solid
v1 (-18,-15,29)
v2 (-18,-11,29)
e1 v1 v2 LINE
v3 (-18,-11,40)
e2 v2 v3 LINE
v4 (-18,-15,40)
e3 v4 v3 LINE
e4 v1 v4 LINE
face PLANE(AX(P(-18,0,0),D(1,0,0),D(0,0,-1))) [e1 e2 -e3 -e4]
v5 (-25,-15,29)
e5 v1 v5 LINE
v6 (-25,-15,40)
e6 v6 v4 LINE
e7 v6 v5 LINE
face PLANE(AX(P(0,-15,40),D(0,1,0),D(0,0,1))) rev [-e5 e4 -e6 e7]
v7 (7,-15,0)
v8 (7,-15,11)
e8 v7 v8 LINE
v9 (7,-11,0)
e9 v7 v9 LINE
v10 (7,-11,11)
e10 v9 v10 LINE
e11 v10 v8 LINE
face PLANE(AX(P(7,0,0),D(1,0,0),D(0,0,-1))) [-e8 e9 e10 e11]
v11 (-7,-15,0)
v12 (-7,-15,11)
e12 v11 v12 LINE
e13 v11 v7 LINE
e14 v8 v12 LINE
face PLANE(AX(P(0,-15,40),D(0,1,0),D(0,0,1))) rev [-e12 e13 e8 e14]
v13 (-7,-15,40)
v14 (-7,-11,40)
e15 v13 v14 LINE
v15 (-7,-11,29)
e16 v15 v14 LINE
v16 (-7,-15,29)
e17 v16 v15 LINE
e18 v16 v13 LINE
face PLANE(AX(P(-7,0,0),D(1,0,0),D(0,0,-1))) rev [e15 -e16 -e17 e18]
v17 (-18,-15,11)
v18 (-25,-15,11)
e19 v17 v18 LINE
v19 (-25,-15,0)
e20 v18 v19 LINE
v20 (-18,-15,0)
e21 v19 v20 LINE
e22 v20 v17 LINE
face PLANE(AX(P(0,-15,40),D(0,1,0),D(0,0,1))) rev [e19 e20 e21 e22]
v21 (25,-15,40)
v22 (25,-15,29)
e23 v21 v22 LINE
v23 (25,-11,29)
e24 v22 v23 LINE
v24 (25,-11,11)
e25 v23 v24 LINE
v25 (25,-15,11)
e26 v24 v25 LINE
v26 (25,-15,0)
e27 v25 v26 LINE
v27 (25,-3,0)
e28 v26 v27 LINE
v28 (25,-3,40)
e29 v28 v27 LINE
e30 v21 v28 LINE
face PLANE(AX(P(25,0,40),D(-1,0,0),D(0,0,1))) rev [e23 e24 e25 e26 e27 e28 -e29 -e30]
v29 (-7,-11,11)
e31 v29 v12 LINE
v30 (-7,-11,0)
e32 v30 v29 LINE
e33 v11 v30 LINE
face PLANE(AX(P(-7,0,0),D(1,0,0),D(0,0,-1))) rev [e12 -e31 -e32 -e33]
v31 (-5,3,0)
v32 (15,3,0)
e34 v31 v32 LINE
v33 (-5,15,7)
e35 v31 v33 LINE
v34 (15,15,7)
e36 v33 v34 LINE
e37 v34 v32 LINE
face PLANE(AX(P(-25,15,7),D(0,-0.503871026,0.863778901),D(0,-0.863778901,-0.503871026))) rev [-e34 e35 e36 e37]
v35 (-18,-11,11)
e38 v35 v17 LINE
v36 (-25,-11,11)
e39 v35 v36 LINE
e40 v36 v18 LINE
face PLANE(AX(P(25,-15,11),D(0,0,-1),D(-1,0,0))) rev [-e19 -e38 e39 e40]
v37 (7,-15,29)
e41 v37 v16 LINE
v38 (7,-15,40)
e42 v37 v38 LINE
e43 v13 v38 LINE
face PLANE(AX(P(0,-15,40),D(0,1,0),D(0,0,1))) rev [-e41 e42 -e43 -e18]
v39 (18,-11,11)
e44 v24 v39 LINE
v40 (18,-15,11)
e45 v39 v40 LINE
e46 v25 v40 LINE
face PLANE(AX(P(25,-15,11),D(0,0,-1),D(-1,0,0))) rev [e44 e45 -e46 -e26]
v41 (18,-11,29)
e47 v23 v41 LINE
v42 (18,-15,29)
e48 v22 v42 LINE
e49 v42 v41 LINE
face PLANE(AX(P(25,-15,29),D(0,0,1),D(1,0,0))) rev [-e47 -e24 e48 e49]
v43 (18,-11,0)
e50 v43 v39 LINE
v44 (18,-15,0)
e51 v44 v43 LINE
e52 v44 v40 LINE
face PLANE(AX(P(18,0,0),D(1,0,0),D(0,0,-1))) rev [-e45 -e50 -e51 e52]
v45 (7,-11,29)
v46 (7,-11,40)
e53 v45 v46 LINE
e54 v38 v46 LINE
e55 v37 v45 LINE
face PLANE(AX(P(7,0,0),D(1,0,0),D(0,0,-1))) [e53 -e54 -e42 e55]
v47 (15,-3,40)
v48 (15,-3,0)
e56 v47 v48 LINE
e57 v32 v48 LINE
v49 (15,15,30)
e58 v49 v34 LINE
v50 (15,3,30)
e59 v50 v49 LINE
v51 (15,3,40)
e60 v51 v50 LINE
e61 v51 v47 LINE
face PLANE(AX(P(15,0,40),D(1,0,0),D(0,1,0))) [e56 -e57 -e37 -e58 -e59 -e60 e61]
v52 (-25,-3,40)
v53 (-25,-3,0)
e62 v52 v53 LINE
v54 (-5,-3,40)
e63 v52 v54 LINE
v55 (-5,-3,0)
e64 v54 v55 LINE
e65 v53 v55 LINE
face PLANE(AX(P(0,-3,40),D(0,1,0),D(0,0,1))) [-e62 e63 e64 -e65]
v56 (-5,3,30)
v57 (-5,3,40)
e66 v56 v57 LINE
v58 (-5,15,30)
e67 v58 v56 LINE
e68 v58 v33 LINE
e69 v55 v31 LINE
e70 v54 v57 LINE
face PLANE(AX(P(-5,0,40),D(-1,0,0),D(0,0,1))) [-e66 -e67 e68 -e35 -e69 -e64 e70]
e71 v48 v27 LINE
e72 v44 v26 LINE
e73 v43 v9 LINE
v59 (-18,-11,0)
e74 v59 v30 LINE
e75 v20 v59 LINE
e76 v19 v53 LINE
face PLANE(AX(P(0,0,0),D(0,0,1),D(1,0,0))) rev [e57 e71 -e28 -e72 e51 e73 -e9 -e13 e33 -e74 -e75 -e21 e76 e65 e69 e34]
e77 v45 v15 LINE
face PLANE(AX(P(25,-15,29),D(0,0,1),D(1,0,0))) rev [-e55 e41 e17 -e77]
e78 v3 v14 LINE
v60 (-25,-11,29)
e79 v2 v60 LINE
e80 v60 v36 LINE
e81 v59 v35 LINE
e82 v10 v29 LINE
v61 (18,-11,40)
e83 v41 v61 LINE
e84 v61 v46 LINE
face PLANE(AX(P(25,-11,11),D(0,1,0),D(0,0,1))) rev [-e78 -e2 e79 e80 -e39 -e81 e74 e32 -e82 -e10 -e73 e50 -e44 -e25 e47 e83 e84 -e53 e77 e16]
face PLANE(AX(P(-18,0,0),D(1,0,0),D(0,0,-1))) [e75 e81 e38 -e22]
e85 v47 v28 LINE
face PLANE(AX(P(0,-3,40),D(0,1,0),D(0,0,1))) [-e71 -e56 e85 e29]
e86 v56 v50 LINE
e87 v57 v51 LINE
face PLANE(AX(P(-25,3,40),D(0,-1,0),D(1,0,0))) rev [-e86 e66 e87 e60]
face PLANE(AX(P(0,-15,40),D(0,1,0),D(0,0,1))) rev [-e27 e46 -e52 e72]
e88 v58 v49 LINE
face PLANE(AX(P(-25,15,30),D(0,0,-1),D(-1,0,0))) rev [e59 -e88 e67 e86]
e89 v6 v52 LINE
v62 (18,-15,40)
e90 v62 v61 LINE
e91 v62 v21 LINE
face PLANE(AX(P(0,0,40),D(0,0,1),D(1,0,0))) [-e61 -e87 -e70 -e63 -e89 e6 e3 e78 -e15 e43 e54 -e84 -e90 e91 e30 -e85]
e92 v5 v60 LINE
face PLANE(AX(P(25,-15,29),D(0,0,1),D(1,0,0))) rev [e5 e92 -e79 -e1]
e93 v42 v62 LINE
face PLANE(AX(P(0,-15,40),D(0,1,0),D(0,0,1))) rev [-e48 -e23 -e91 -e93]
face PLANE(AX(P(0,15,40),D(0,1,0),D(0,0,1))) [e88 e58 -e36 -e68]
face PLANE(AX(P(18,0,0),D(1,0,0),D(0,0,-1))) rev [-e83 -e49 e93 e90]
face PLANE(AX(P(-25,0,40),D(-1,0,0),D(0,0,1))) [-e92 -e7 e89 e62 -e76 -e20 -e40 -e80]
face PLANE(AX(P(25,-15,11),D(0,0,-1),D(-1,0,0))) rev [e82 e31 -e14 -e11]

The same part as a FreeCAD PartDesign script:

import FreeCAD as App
import Part
import Sketcher


def add_polygon(sketch, points):
    """Adds a closed chain of lines whose ends are joined by coincident constraints."""
    first, n = sketch.GeometryCount, len(points)
    for a, b in zip(points, points[1:] + points[:1]):
        sketch.addGeometry(Part.LineSegment(App.Vector(*a, 0), App.Vector(*b, 0)), False)
    for i in range(n):
        sketch.addConstraint(Sketcher.Constraint("Coincident", first + i, 2, first + (i + 1) % n, 1))

doc = App.newDocument("Part")
body = doc.addObject("PartDesign::Body", "Body")

# Sketch on XY plane
sketch1 = body.newObject("Sketcher::SketchObject", "Sketch")
sketch1.AttachmentSupport = (doc.getObject("XY_Plane"), [""])
sketch1.MapMode = "FlatFace"
add_polygon(sketch1, [(-5, -3), (-25, -3), (-25, -15), (25, -15), (25, -3), (15, -3), (15, 15), (-5, 15)])  # lines 0-7
sketch1.addConstraint([
    Sketcher.Constraint("Horizontal", 0),
    Sketcher.Constraint("Vertical", 1),
    Sketcher.Constraint("Horizontal", 2),
    Sketcher.Constraint("Vertical", 3),
    Sketcher.Constraint("Horizontal", 4),
    Sketcher.Constraint("Vertical", 5),
    Sketcher.Constraint("Horizontal", 6),
    Sketcher.Constraint("Vertical", 7),
    Sketcher.Constraint("Symmetric", 0, 2, 3, 2, -2),
    Sketcher.Constraint("Equal", 0, 6),
    Sketcher.Constraint("DistanceX", 0, 2, 0, 1, 20.0),
    Sketcher.Constraint("DistanceX", 2, 1, 2, 2, 50.0),
    Sketcher.Constraint("DistanceY", 1, 2, 1, 1, 12.0),
    Sketcher.Constraint("DistanceY", 5, 1, 5, 2, 18.0),
    Sketcher.Constraint("DistanceY", 0, 2, -1, 1, 3.0),
])
pad1 = body.newObject("PartDesign::Pad", "Pad")
pad1.Profile = sketch1
pad1.Length = 40

# Sketch on YZ plane
sketch2 = body.newObject("Sketcher::SketchObject", "Sketch001")
sketch2.AttachmentSupport = (doc.getObject("YZ_Plane"), [""])
sketch2.MapMode = "FlatFace"
sketch2.AttachmentOffset = App.Placement(App.Vector(0, 0, -25), App.Rotation())
add_polygon(sketch2, [(-11, 11), (-15, 11), (-15, 29), (-11, 29)])  # lines 0-3
sketch2.addConstraint([
    Sketcher.Constraint("Horizontal", 0),
    Sketcher.Constraint("Vertical", 1),
    Sketcher.Constraint("Horizontal", 2),
    Sketcher.Constraint("Vertical", 3),
    Sketcher.Constraint("DistanceX", 0, 2, 0, 1, 4.0),
    Sketcher.Constraint("DistanceY", 1, 1, 1, 2, 18.0),
    Sketcher.Constraint("DistanceX", 0, 2, -1, 1, 15.0),
    Sketcher.Constraint("DistanceY", -1, 1, 0, 2, 11.0),
])
pocket1 = body.newObject("PartDesign::Pocket", "Pocket")
pocket1.Profile = sketch2
pocket1.Type = "ThroughAll"
pocket1.Reversed = True

# Sketch on XY plane
sketch3 = body.newObject("Sketcher::SketchObject", "Sketch002")
sketch3.AttachmentSupport = (doc.getObject("XY_Plane"), [""])
sketch3.MapMode = "FlatFace"
sketch3.AttachmentOffset = App.Placement(App.Vector(0, 0, 40), App.Rotation())
add_polygon(sketch3, [(-18, -11), (-18, -15), (-7, -15), (-7, -11)])  # lines 0-3
sketch3.addConstraint([
    Sketcher.Constraint("Vertical", 0),
    Sketcher.Constraint("Horizontal", 1),
    Sketcher.Constraint("Vertical", 2),
    Sketcher.Constraint("Horizontal", 3),
    Sketcher.Constraint("DistanceX", 1, 1, 1, 2, 11.0),
    Sketcher.Constraint("DistanceY", 0, 2, 0, 1, 4.0),
    Sketcher.Constraint("DistanceX", 0, 2, -1, 1, 18.0),
    Sketcher.Constraint("DistanceY", 0, 2, -1, 1, 15.0),
])
pocket2 = body.newObject("PartDesign::Pocket", "Pocket001")
pocket2.Profile = sketch3
pocket2.Type = "ThroughAll"
doc.recompute()

mirrored = body.newObject("PartDesign::Mirrored", "Mirrored")
mirrored.Originals = [pocket2]
mirrored.MirrorPlane = (doc.getObject("YZ_Plane"), [""])
body.Tip = mirrored

# Sketch on YZ plane
sketch4 = body.newObject("Sketcher::SketchObject", "Sketch003")
sketch4.AttachmentSupport = (doc.getObject("YZ_Plane"), [""])
sketch4.MapMode = "FlatFace"
sketch4.AttachmentOffset = App.Placement(App.Vector(0, 0, 15), App.Rotation())
add_polygon(sketch4, [(15, 7), (3, 0), (15, 0)])  # lines 0-2
add_polygon(sketch4, [(15, 40), (3, 40), (3, 30), (15, 30)])  # lines 3-6
sketch4.addConstraint([
    Sketcher.Constraint("Horizontal", 1),
    Sketcher.Constraint("Vertical", 2),
    Sketcher.Constraint("Horizontal", 3),
    Sketcher.Constraint("Vertical", 4),
    Sketcher.Constraint("Horizontal", 5),
    Sketcher.Constraint("Vertical", 6),
    Sketcher.Constraint("PointOnObject", 0, 2, -1),
    Sketcher.Constraint("Vertical", 0, 2, 3, 2),
    Sketcher.Constraint("Vertical", 2, 2, 5, 2),
    Sketcher.Constraint("DistanceX", 1, 1, 1, 2, 12.0),
    Sketcher.Constraint("DistanceY", 2, 1, 2, 2, 7.0),
    Sketcher.Constraint("DistanceY", 4, 2, 4, 1, 10.0),
    Sketcher.Constraint("DistanceX", -1, 1, 0, 2, 3.0),
    Sketcher.Constraint("DistanceY", -1, 1, 3, 2, 40.0),
])
pocket3 = body.newObject("PartDesign::Pocket", "Pocket002")
pocket3.Profile = sketch4
pocket3.Type = "ThroughAll"

doc.recompute()
